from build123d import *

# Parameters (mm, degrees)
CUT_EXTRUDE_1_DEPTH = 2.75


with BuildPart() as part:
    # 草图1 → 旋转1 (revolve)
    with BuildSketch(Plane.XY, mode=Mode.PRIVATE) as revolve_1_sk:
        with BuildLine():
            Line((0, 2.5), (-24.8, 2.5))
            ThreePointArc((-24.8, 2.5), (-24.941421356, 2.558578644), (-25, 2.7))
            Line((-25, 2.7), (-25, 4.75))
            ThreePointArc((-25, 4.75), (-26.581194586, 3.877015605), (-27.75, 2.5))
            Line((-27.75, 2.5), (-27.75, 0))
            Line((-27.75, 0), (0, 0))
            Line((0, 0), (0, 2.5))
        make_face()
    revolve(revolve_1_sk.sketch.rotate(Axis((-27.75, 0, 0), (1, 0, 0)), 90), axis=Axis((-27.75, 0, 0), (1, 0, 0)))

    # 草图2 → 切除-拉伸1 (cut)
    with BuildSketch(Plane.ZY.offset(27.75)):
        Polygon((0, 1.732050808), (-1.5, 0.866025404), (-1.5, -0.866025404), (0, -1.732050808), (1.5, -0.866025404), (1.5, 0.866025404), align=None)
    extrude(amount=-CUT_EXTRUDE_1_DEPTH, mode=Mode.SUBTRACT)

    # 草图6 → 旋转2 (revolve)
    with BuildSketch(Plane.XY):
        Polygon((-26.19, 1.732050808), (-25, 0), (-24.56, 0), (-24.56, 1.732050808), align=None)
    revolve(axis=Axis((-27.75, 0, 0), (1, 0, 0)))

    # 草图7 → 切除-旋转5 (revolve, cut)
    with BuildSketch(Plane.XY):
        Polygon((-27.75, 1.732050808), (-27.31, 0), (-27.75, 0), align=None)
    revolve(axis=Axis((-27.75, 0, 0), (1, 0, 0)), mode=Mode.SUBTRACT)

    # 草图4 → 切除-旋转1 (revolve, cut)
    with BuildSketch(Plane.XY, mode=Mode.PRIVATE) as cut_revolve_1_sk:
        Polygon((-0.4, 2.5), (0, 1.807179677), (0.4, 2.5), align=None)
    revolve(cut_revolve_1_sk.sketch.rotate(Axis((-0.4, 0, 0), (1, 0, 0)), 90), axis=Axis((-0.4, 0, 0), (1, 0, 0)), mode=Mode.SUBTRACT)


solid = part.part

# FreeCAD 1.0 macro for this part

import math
import FreeCAD as App
import Part
import Sketcher

V = App.Vector
Q = App.Units.Quantity

doc = App.newDocument("Part")
body = doc.addObject("PartDesign::Body", "Body")

sketch1 = body.newObject("Sketcher::SketchObject", "Sketch")
sketch1.AttachmentSupport = (doc.getObject("XY_Plane"), [""])
sketch1.MapMode = "FlatFace"
sketch1.addGeometry([
    Part.LineSegment(V(0, 2.5, 0), V(-24.8, 2.5, 0)),
    Part.ArcOfCircle(Part.Circle(V(-24.8, 2.7, 0), V(0, 0, 1), 0.2), math.radians(-180), math.radians(-90)),
    Part.LineSegment(V(-25, 2.7, 0), V(-25, 4.75, 0)),
    Part.ArcOfCircle(Part.Circle(V(-23.41, 0, 0), V(0, 0, 1), 5.01), math.radians(109), math.radians(150)),
    Part.LineSegment(V(-27.75, 2.5, 0), V(-27.75, 0, 0)),
    Part.LineSegment(V(-27.75, 0, 0), V(0, 0, 0)),
    Part.LineSegment(V(0, 0, 0), V(0, 2.5, 0)),
], False)
sketch1.addConstraint([
    Sketcher.Constraint("Tangent", 0, 2, 1, 2),
    Sketcher.Constraint("Tangent", 1, 1, 2, 1),
    Sketcher.Constraint("Coincident", 2, 2, 3, 1),
    Sketcher.Constraint("Coincident", 3, 2, 4, 1),
    Sketcher.Constraint("Coincident", 4, 2, 5, 1),
    Sketcher.Constraint("Coincident", 5, 2, 6, 1),
    Sketcher.Constraint("Coincident", 6, 2, 0, 1),
    Sketcher.Constraint("Horizontal", 0),
    Sketcher.Constraint("Vertical", 2),
    Sketcher.Constraint("Vertical", 4),
    Sketcher.Constraint("Horizontal", 5),
    Sketcher.Constraint("Vertical", 6),
    Sketcher.Constraint("Coincident", 5, 2, -1, 1),
    Sketcher.Constraint("PointOnObject", 3, 3, -1),
    Sketcher.Constraint("Horizontal", 0, 2, 3, 2),
    Sketcher.Constraint("Radius", 1, 0.2),
    Sketcher.Constraint("DistanceX", 0, 2, 0, 1, 24.8),
    Sketcher.Constraint("DistanceY", 4, 2, 4, 1, 2.5),
    Sketcher.Constraint("DistanceX", 5, 1, 5, 2, 27.75),
    Sketcher.Constraint("DistanceY", 2, 1, 2, 2, 2.05),
])
revolution = body.newObject("PartDesign::Revolution", "Revolution")
revolution.Profile = sketch1
revolution.ReferenceAxis = (sketch1, ["H_Axis"])
revolution.Angle = 360

sketch2 = body.newObject("Sketcher::SketchObject", "Sketch001")
sketch2.AttachmentSupport = (doc.getObject("YZ_Plane"), [""])
sketch2.MapMode = "FlatFace"
sketch2.AttachmentOffset = App.Placement(V(0, 0, -27.75), App.Rotation())
sketch2.addGeometry([
    Part.LineSegment(V(1.7, 0, 0), V(0.9, -1.5, 0)),
    Part.LineSegment(V(0.9, -1.5, 0), V(-0.9, -1.5, 0)),
    Part.LineSegment(V(-0.9, -1.5, 0), V(-1.7, 0, 0)),
    Part.LineSegment(V(-1.7, 0, 0), V(-0.9, 1.5, 0)),
    Part.LineSegment(V(-0.9, 1.5, 0), V(0.9, 1.5, 0)),
    Part.LineSegment(V(0.9, 1.5, 0), V(1.7, 0, 0)),
], False)
sketch2.addConstraint([
    Sketcher.Constraint("Coincident", 0, 2, 1, 1),
    Sketcher.Constraint("Coincident", 1, 2, 2, 1),
    Sketcher.Constraint("Coincident", 2, 2, 3, 1),
    Sketcher.Constraint("Coincident", 3, 2, 4, 1),
    Sketcher.Constraint("Coincident", 4, 2, 5, 1),
    Sketcher.Constraint("Coincident", 5, 2, 0, 1),
    Sketcher.Constraint("Horizontal", 1),
    Sketcher.Constraint("Horizontal", 4),
    Sketcher.Constraint("Symmetric", 0, 2, 3, 2, -1, 1),
    Sketcher.Constraint("Symmetric", 2, 2, 5, 2, -1, 1),
    Sketcher.Constraint("PointOnObject", 2, 2, -1),
    Sketcher.Constraint("Parallel", 2, 5),
    Sketcher.Constraint("Vertical", 1, 2, 3, 2),
    Sketcher.Constraint("Angle", 0, Q("-120 deg")),
    Sketcher.Constraint("DistanceY", 1, 2, 3, 2, 3.0),
    Sketcher.Constraint("DistanceX", 1, 2, 1, 1, 1.732051),
])
pocket1 = body.newObject("PartDesign::Pocket", "Pocket")
pocket1.Profile = sketch2
pocket1.Length = 2.75
pocket1.Reversed = True

sketch3 = body.newObject("Sketcher::SketchObject", "Sketch002")
sketch3.AttachmentSupport = (doc.getObject("XY_Plane"), [""])
sketch3.MapMode = "FlatFace"
sketch3.addGeometry([
    Part.LineSegment(V(-26.19, 1.73, 0), V(-25, 0, 0)),
    Part.LineSegment(V(-25, 0, 0), V(-24.56, 0, 0)),
    Part.LineSegment(V(-24.56, 0, 0), V(-24.56, 1.73, 0)),
    Part.LineSegment(V(-24.56, 1.73, 0), V(-26.19, 1.73, 0)),
], False)
sketch3.addConstraint([
    Sketcher.Constraint("Coincident", 0, 2, 1, 1),
    Sketcher.Constraint("Coincident", 1, 2, 2, 1),
    Sketcher.Constraint("Coincident", 2, 2, 3, 1),
    Sketcher.Constraint("Coincident", 3, 2, 0, 1),
    Sketcher.Constraint("Horizontal", 1),
    Sketcher.Constraint("Vertical", 2),
    Sketcher.Constraint("Horizontal", 3),
    Sketcher.Constraint("PointOnObject", 0, 2, -1),
    Sketcher.Constraint("DistanceX", 0, 2, -1, 1, 25.0),
    Sketcher.Constraint("DistanceX", 1, 1, 1, 2, 0.44),
    Sketcher.Constraint("DistanceX", 3, 2, 3, 1, 1.63),
    Sketcher.Constraint("DistanceY", 2, 1, 2, 2, 1.732051),
])
revolution2 = body.newObject("PartDesign::Revolution", "Revolution001")
revolution2.Profile = sketch3
revolution2.ReferenceAxis = (sketch3, ["H_Axis"])
revolution2.Angle = 360

sketch4 = body.newObject("Sketcher::SketchObject", "Sketch003")
sketch4.AttachmentSupport = (doc.getObject("XY_Plane"), [""])
sketch4.MapMode = "FlatFace"
sketch4.addGeometry([
    Part.LineSegment(V(-27.31, 0, 0), V(-27.75, 1.73, 0)),
    Part.LineSegment(V(-27.75, 1.73, 0), V(-27.75, 0, 0)),
    Part.LineSegment(V(-27.75, 0, 0), V(-27.31, 0, 0)),
], False)
sketch4.addConstraint([
    Sketcher.Constraint("Coincident", 0, 2, 1, 1),
    Sketcher.Constraint("Coincident", 1, 2, 2, 1),
    Sketcher.Constraint("Coincident", 2, 2, 0, 1),
    Sketcher.Constraint("Vertical", 1),
    Sketcher.Constraint("Horizontal", 2),
    Sketcher.Constraint("PointOnObject", 1, 2, -1),
    Sketcher.Constraint("DistanceX", 2, 1, 2, 2, 0.44),
    Sketcher.Constraint("DistanceX", 0, 2, -1, 1, 27.75),
    Sketcher.Constraint("DistanceY", 1, 2, 1, 1, 1.732051),
])
groove = body.newObject("PartDesign::Groove", "Groove")
groove.Profile = sketch4
groove.ReferenceAxis = (sketch4, ["H_Axis"])
groove.Angle = 360

sketch5 = body.newObject("Sketcher::SketchObject", "Sketch004")
sketch5.AttachmentSupport = (doc.getObject("XY_Plane"), [""])
sketch5.MapMode = "FlatFace"
sketch5.addGeometry([
    Part.LineSegment(V(-0.4, 2.5, 0), V(0, 1.8, 0)),
    Part.LineSegment(V(0, 1.8, 0), V(0.4, 2.5, 0)),
    Part.LineSegment(V(0.4, 2.5, 0), V(-0.4, 2.5, 0)),
], False)
sketch5.addConstraint([
    Sketcher.Constraint("Coincident", 0, 2, 1, 1),
    Sketcher.Constraint("Coincident", 1, 2, 2, 1),
    Sketcher.Constraint("Coincident", 2, 2, 0, 1),
    Sketcher.Constraint("Horizontal", 2),
    Sketcher.Constraint("PointOnObject", 0, 2, -2),
    Sketcher.Constraint("Equal", 0, 1),
    Sketcher.Constraint("Angle", 0, Q("-60 deg")),
    Sketcher.Constraint("DistanceX", 2, 2, 2, 1, 0.8),
    Sketcher.Constraint("DistanceY", -1, 1, 1, 2, 2.5),
])
groove2 = body.newObject("PartDesign::Groove", "Groove001")
groove2.Profile = sketch5
groove2.ReferenceAxis = (sketch5, ["H_Axis"])
groove2.Angle = 360

doc.recompute()
